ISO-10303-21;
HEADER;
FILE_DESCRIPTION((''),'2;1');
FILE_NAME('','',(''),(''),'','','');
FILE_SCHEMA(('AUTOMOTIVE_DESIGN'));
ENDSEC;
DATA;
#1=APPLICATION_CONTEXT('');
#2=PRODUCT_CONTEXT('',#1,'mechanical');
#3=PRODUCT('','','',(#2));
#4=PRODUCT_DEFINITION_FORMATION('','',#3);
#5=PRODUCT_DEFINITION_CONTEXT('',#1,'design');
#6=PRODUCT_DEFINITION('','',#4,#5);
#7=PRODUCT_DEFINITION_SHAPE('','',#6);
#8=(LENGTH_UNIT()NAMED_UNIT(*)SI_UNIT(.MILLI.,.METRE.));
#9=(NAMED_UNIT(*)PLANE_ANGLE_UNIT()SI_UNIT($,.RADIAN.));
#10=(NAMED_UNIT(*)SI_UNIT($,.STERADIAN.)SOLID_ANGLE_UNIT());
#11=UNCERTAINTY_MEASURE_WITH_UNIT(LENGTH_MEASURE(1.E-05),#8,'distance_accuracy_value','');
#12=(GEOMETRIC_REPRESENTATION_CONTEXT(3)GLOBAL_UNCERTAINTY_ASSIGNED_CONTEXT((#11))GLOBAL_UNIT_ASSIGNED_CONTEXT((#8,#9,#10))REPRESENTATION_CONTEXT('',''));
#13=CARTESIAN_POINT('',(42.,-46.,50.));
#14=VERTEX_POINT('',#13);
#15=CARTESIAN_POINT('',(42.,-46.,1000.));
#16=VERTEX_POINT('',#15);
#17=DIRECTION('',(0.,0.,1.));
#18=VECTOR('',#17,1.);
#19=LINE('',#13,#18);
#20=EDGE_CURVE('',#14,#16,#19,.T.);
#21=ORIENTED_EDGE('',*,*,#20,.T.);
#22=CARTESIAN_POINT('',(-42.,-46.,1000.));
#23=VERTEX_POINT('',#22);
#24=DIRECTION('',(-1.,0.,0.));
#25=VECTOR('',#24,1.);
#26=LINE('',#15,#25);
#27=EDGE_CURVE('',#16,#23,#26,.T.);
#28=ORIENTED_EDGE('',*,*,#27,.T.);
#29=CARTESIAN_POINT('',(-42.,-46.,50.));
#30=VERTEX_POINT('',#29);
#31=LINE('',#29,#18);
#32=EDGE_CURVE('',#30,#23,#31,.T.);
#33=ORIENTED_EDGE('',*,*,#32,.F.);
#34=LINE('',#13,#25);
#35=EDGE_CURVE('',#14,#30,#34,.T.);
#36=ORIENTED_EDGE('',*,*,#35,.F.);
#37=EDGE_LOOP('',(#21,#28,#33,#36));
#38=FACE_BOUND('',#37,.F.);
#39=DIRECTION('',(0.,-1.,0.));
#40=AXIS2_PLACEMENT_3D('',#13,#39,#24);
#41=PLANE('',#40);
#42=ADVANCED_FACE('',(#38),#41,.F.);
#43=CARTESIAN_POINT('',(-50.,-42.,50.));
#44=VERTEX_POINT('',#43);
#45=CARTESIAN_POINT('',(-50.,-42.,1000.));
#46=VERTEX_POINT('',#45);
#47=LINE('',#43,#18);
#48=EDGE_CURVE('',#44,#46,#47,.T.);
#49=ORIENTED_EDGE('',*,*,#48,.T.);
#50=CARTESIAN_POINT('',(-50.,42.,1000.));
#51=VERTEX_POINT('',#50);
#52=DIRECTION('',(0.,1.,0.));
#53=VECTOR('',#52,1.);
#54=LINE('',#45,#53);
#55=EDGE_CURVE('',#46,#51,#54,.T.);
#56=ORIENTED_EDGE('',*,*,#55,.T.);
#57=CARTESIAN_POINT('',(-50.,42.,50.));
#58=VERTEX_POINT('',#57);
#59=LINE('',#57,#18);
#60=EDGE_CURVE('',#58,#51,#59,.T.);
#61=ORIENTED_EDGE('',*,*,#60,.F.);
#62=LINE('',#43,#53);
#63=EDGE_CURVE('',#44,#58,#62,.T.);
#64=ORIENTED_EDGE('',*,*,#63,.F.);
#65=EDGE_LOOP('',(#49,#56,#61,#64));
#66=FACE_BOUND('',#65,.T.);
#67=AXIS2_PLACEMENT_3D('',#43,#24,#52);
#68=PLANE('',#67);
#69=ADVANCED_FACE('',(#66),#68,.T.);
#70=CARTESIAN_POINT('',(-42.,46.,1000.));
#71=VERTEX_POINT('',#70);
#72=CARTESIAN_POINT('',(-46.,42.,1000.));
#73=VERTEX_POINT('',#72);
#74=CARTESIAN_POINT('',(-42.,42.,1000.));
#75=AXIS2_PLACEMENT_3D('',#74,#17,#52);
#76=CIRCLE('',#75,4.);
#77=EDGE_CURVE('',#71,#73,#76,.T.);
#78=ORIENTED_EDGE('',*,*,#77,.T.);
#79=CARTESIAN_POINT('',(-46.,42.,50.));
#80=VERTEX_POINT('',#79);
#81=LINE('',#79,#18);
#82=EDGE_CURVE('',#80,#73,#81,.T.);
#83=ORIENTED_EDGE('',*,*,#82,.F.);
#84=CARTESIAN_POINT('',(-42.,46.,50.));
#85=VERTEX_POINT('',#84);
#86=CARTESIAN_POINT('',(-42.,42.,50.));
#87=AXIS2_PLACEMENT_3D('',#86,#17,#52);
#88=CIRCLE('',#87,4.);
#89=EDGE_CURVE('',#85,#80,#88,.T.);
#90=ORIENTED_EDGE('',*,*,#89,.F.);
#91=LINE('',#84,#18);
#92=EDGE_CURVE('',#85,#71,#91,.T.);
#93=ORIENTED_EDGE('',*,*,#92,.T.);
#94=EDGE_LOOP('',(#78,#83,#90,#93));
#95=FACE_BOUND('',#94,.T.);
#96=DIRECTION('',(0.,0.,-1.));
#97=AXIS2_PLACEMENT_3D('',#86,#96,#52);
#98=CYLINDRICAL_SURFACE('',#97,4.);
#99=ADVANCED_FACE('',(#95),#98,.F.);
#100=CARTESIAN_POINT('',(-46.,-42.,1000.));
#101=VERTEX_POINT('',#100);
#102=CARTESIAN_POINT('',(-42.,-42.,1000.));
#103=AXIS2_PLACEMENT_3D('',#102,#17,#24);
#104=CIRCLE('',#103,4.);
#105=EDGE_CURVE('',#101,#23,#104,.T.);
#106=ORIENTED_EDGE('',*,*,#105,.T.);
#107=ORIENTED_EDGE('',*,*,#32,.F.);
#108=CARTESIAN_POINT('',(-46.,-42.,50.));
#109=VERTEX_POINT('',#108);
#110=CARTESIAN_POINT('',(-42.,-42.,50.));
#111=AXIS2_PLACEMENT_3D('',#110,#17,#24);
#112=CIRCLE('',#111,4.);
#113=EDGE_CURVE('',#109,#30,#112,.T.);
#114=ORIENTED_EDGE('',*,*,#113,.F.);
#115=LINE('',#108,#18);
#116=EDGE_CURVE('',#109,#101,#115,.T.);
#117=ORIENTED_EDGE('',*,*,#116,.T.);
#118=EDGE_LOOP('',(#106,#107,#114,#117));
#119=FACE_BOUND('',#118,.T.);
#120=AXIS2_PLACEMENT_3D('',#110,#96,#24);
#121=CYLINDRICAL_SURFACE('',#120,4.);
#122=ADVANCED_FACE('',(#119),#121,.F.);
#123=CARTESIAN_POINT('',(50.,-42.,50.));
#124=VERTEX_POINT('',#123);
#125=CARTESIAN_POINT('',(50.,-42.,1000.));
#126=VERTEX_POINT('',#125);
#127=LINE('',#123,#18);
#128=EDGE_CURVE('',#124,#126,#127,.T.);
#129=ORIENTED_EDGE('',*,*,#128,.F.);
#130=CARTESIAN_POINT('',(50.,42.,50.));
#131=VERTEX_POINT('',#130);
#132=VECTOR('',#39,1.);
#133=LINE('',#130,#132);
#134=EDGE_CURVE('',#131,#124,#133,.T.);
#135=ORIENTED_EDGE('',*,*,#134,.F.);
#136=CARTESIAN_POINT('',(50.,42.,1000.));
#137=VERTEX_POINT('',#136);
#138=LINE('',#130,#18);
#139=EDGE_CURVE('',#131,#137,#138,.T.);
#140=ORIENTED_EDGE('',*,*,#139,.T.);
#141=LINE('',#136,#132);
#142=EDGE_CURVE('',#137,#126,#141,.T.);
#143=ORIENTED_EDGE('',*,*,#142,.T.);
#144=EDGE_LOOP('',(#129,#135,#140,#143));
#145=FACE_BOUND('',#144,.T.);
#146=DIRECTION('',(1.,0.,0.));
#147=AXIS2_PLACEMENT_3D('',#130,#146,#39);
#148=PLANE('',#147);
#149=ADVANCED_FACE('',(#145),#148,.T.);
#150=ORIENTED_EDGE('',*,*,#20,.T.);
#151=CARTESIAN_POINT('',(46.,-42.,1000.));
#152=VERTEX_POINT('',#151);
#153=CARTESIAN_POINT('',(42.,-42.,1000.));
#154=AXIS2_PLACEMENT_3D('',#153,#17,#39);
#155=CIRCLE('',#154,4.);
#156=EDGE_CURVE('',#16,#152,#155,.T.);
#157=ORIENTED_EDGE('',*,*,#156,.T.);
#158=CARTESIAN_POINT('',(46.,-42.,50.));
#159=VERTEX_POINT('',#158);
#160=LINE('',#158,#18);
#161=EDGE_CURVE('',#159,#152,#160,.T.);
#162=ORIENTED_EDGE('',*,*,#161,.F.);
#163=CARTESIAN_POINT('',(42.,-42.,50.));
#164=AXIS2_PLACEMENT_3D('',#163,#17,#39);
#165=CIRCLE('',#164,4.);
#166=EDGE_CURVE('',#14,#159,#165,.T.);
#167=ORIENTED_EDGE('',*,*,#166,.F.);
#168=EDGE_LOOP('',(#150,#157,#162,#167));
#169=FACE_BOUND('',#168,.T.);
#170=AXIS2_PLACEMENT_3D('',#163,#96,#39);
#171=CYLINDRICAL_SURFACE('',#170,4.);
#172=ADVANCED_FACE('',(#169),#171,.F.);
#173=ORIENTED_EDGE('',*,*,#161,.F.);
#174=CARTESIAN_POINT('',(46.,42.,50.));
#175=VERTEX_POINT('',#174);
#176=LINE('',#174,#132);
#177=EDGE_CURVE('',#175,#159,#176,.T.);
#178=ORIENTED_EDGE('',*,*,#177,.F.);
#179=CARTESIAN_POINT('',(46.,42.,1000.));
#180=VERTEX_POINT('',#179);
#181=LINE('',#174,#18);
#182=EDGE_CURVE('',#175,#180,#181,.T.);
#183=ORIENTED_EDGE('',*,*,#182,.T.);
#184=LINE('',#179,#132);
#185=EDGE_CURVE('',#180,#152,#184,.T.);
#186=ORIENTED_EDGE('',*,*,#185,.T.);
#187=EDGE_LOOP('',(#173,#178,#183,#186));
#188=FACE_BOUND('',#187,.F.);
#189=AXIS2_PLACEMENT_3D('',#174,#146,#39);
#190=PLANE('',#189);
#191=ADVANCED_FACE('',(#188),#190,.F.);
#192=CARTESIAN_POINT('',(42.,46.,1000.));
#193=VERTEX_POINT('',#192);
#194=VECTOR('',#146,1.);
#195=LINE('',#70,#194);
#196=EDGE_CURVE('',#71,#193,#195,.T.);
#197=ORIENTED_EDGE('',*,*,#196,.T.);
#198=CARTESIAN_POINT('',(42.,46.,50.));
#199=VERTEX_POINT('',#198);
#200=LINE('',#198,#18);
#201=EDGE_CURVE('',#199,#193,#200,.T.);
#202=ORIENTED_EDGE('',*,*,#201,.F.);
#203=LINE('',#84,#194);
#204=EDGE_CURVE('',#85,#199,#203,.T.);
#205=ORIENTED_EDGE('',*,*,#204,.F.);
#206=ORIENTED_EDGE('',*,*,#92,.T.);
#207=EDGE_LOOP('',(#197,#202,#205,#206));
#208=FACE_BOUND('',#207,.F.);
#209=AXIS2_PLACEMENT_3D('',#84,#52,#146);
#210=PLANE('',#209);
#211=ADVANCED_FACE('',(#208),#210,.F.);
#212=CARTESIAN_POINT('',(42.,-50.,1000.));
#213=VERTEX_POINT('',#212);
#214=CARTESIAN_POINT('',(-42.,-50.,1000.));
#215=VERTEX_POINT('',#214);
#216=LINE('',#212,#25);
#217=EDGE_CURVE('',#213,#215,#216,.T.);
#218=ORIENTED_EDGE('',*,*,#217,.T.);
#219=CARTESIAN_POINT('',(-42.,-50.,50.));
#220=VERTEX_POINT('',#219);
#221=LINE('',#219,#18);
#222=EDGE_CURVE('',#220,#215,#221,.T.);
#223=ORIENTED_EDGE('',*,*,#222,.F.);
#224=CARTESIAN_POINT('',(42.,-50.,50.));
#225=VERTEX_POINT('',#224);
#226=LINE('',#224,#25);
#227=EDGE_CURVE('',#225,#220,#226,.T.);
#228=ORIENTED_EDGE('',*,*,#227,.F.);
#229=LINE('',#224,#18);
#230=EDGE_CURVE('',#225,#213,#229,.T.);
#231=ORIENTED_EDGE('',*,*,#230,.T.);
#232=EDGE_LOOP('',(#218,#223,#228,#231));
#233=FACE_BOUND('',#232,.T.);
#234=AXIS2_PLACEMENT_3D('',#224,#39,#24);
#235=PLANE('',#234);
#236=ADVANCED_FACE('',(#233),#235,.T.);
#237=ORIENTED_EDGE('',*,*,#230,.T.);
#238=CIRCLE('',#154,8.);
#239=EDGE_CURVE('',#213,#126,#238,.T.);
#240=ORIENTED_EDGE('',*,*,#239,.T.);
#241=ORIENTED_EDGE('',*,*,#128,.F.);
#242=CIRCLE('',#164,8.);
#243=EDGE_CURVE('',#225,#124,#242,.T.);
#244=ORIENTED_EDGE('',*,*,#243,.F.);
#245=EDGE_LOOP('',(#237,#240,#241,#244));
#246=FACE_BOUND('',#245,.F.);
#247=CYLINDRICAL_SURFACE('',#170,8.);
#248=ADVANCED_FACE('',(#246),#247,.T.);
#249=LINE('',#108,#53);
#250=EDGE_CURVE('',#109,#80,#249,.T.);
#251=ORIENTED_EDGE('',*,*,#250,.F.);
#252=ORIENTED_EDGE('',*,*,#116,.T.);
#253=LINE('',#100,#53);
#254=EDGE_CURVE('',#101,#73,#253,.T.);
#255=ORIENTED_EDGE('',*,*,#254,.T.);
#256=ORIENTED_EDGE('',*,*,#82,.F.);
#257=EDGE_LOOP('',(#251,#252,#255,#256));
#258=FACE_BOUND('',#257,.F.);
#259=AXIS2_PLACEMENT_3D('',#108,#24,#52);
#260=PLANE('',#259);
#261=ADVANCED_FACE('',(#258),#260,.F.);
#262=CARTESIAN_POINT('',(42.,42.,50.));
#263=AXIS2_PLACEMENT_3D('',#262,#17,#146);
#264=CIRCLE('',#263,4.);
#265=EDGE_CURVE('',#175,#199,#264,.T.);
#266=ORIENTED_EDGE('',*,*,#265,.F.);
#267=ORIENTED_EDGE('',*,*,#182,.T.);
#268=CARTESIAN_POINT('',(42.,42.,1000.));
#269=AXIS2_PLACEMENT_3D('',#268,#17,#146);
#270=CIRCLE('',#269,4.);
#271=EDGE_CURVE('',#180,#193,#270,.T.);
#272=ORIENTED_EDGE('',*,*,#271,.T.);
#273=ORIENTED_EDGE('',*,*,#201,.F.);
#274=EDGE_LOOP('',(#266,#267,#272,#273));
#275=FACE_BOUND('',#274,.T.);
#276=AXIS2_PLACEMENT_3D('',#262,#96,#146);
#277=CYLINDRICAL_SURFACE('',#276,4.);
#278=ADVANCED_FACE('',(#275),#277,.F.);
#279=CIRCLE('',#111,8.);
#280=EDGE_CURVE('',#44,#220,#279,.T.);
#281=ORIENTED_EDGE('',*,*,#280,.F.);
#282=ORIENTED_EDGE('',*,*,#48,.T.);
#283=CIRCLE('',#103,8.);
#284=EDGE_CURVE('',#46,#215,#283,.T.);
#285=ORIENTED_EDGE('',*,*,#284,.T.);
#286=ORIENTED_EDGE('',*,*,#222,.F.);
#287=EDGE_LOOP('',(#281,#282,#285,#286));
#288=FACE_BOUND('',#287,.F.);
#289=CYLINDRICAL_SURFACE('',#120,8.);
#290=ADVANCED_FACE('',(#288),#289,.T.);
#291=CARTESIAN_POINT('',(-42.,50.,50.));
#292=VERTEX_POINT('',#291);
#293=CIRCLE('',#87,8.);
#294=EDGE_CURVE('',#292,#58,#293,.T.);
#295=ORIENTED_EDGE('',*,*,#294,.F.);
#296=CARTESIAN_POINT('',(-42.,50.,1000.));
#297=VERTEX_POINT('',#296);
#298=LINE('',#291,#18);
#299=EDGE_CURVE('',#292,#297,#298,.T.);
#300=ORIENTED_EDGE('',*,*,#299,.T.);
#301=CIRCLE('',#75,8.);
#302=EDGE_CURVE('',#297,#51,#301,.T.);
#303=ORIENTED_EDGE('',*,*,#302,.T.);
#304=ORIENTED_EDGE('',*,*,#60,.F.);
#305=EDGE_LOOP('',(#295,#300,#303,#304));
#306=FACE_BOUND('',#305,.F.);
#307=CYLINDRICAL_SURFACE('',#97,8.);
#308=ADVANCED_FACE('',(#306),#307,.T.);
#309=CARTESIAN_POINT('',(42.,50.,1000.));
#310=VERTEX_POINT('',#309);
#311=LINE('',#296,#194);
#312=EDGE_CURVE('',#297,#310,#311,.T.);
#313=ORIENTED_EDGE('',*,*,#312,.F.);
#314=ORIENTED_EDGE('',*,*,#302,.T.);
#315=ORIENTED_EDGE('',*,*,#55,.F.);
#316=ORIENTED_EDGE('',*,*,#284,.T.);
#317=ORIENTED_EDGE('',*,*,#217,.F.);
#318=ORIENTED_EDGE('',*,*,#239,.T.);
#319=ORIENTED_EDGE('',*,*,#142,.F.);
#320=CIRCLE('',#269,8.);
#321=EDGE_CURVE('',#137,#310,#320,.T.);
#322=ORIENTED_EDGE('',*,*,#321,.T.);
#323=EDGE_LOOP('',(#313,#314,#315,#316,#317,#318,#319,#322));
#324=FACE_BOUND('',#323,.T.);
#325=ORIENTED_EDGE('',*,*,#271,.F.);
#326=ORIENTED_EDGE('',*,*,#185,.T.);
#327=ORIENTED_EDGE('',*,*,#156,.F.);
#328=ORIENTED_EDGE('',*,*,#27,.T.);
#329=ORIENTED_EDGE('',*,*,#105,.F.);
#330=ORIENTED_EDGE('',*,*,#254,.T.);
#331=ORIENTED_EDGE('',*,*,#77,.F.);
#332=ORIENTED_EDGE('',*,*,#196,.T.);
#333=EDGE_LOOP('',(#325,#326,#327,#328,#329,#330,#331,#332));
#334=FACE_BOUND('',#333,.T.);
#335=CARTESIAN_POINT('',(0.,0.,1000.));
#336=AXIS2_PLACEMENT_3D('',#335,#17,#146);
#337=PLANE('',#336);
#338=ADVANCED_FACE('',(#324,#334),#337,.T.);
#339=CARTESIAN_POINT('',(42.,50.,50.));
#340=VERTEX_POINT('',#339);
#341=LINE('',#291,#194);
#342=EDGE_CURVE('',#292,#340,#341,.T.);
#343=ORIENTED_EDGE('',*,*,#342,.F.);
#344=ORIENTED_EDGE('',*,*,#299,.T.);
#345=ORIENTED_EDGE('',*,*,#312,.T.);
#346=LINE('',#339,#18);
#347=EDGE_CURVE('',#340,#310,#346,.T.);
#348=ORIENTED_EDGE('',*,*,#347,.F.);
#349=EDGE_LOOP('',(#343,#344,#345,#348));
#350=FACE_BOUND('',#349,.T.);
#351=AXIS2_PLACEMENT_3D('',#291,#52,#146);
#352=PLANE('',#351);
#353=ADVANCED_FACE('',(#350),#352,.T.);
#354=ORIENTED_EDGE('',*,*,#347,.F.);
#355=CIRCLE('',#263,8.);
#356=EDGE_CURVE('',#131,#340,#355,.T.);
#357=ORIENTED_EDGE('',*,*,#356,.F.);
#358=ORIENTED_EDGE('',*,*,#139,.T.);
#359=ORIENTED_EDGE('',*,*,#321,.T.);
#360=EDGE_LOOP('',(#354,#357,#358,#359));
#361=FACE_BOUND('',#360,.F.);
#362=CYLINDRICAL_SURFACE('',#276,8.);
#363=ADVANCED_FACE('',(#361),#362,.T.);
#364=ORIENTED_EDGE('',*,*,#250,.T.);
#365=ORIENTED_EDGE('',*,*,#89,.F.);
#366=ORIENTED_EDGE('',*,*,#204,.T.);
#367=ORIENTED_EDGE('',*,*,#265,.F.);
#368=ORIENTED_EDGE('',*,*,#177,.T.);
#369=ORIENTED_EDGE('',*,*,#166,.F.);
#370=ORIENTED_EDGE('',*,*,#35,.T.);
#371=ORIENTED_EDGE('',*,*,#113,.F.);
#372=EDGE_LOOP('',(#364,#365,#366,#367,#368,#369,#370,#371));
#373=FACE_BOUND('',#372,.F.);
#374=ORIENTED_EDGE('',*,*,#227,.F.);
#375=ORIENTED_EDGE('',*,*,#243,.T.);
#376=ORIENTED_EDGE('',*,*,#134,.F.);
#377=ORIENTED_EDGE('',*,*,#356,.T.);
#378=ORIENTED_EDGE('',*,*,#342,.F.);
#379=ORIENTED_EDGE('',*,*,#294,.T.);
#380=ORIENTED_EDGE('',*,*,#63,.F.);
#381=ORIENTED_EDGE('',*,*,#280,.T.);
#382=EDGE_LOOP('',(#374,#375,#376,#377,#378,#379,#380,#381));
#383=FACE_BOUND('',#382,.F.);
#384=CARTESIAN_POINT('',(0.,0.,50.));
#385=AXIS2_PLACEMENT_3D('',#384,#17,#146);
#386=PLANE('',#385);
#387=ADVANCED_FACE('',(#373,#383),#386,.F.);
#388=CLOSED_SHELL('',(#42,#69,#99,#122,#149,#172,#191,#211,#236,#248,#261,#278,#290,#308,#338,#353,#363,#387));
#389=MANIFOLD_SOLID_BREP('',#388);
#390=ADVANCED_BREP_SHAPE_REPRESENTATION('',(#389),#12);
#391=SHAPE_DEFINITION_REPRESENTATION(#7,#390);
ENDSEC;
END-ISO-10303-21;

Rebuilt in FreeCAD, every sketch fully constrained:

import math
import FreeCAD as App
import Part
import Sketcher
Q = App.Units.Quantity

doc = App.newDocument("Part")
body = doc.addObject("PartDesign::Body", "Body")

sketch1 = body.newObject("Sketcher::SketchObject", "Sketch")
sketch1.AttachmentSupport = (doc.getObject("XY_Plane"), [""])
sketch1.MapMode = "FlatFace"
sketch1.AttachmentOffset = App.Placement(App.Vector(0, 0, 50), App.Rotation())
sketch1.addGeometry([
    Part.LineSegment(App.Vector(-50, 42, 0), App.Vector(-50, -42, 0)),
    Part.ArcOfCircle(Part.Circle(App.Vector(-42, -42, 0), App.Vector(0, 0, 1), 8), math.radians(180), math.radians(270)),
    Part.LineSegment(App.Vector(-42, -50, 0), App.Vector(42, -50, 0)),
    Part.ArcOfCircle(Part.Circle(App.Vector(42, -42, 0), App.Vector(0, 0, 1), 8), math.radians(-90), math.radians(0)),
    Part.LineSegment(App.Vector(50, -42, 0), App.Vector(50, 42, 0)),
    Part.ArcOfCircle(Part.Circle(App.Vector(42, 42, 0), App.Vector(0, 0, 1), 8), math.radians(0), math.radians(90)),
    Part.LineSegment(App.Vector(42, 50, 0), App.Vector(-42, 50, 0)),
    Part.ArcOfCircle(Part.Circle(App.Vector(-42, 42, 0), App.Vector(0, 0, 1), 8), math.radians(90), math.radians(180)),
    Part.ArcOfCircle(Part.Circle(App.Vector(-42, 42, 0), App.Vector(0, 0, 1), 4), math.radians(90), math.radians(180)),
    Part.LineSegment(App.Vector(-42, 46, 0), App.Vector(42, 46, 0)),
    Part.ArcOfCircle(Part.Circle(App.Vector(42, 42, 0), App.Vector(0, 0, 1), 4), math.radians(0), math.radians(90)),
    Part.LineSegment(App.Vector(46, 42, 0), App.Vector(46, -42, 0)),
    Part.ArcOfCircle(Part.Circle(App.Vector(42, -42, 0), App.Vector(0, 0, 1), 4), math.radians(-90), math.radians(0)),
    Part.LineSegment(App.Vector(42, -46, 0), App.Vector(-42, -46, 0)),
    Part.ArcOfCircle(Part.Circle(App.Vector(-42, -42, 0), App.Vector(0, 0, 1), 4), math.radians(180), math.radians(270)),
    Part.LineSegment(App.Vector(-46, -42, 0), App.Vector(-46, 42, 0)),
], False)
sketch1.addConstraint([
    Sketcher.Constraint("Tangent", 0, 2, 1, 1),
    Sketcher.Constraint("Tangent", 1, 2, 2, 1),
    Sketcher.Constraint("Tangent", 2, 2, 3, 1),
    Sketcher.Constraint("Tangent", 3, 2, 4, 1),
    Sketcher.Constraint("Tangent", 4, 2, 5, 1),
    Sketcher.Constraint("Tangent", 5, 2, 6, 1),
    Sketcher.Constraint("Tangent", 6, 2, 7, 1),
    Sketcher.Constraint("Tangent", 7, 2, 0, 1),
    Sketcher.Constraint("Tangent", 8, 1, 9, 1),
    Sketcher.Constraint("Tangent", 9, 2, 10, 2),
    Sketcher.Constraint("Tangent", 10, 1, 11, 1),
    Sketcher.Constraint("Tangent", 11, 2, 12, 2),
    Sketcher.Constraint("Tangent", 12, 1, 13, 1),
    Sketcher.Constraint("Tangent", 13, 2, 14, 2),
    Sketcher.Constraint("Tangent", 14, 1, 15, 1),
    Sketcher.Constraint("Tangent", 15, 2, 8, 2),
    Sketcher.Constraint("Vertical", 0),
    Sketcher.Constraint("Horizontal", 2),
    Sketcher.Constraint("Vertical", 4),
    Sketcher.Constraint("Horizontal", 6),
    Sketcher.Constraint("Horizontal", 9),
    Sketcher.Constraint("Vertical", 11),
    Sketcher.Constraint("Horizontal", 13),
    Sketcher.Constraint("Vertical", 15),
    Sketcher.Constraint("Coincident", 8, 3, 7, 3),
    Sketcher.Constraint("Coincident", 10, 3, 5, 3),
    Sketcher.Constraint("Coincident", 12, 3, 3, 3),
    Sketcher.Constraint("Equal", 1, 3),
    Sketcher.Constraint("Equal", 3, 5),
    Sketcher.Constraint("Equal", 5, 7),
    Sketcher.Constraint("Equal", 12, 14),
    Sketcher.Constraint("Symmetric", 1, 3, 5, 3, -1, 1),
    Sketcher.Constraint("Equal", 13, 0),
    Sketcher.Constraint("Radius", 1, Q("8 mm")),
    Sketcher.Constraint("Radius", 8, Q("4 mm")),
    Sketcher.Constraint("DistanceX", 0, 2, -1, 1, Q("50 mm")),
])
pad1 = body.newObject("PartDesign::Pad", "Pad")
pad1.Profile = sketch1
pad1.Length = 950

doc.recompute()
